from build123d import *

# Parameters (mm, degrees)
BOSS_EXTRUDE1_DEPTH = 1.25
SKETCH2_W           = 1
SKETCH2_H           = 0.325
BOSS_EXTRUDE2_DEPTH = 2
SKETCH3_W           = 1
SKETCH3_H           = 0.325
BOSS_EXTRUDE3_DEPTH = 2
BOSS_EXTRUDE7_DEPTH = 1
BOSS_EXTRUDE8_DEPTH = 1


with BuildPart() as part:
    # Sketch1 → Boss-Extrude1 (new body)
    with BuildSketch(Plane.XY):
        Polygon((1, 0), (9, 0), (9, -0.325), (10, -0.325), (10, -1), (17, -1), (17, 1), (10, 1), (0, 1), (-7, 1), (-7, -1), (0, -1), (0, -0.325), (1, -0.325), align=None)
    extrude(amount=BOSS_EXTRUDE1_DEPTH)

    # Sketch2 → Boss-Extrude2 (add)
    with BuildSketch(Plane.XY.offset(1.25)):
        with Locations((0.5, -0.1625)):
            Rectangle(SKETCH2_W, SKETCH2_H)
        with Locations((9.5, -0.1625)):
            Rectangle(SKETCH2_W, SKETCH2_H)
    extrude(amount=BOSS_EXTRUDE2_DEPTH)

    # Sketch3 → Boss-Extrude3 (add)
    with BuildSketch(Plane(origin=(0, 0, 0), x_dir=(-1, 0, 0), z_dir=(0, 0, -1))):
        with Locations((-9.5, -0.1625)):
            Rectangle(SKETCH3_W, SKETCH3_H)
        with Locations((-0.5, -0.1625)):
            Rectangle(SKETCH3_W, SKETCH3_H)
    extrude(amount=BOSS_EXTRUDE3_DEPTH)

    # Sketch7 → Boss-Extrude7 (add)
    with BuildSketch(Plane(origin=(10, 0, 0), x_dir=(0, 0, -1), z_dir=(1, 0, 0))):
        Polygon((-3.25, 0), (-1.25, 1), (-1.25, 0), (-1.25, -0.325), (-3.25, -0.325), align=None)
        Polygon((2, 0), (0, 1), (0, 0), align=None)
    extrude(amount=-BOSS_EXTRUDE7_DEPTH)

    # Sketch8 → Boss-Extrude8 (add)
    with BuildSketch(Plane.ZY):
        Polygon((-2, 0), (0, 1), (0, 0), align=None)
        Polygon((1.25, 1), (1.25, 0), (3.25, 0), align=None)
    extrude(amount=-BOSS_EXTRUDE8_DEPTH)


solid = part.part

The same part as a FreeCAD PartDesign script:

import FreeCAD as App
import Part
import Sketcher
from FreeCAD import Vector
Q = App.Units.Quantity


def add_polygon(sketch, points):
    """Adds a closed chain of lines whose ends are joined by coincident constraints."""
    first, n = sketch.GeometryCount, len(points)
    for a, b in zip(points, points[1:] + points[:1]):
        sketch.addGeometry(Part.LineSegment(App.Vector(*a, 0), App.Vector(*b, 0)), False)
    for i in range(n):
        sketch.addConstraint(Sketcher.Constraint("Coincident", first + i, 2, first + (i + 1) % n, 1))

doc = App.newDocument("Part")
body = doc.addObject("PartDesign::Body", "Body")

sketch1 = body.newObject("Sketcher::SketchObject", "Sketch")
sketch1.AttachmentSupport = (doc.getObject("XY_Plane"), [""])
sketch1.MapMode = "FlatFace"
add_polygon(sketch1, [(1, 0), (9, 0), (9, -0.33), (10, -0.33), (10, -1), (17, -1), (17, 1), (-7, 1), (-7, -1), (0, -1), (0, -0.33), (1, -0.33)])
sketch1.addConstraint([
    Sketcher.Constraint("Horizontal", 0),
    Sketcher.Constraint("Vertical", 1),
    Sketcher.Constraint("Horizontal", 2),
    Sketcher.Constraint("Vertical", 3),
    Sketcher.Constraint("Horizontal", 4),
    Sketcher.Constraint("Vertical", 5),
    Sketcher.Constraint("Horizontal", 6),
    Sketcher.Constraint("Vertical", 7),
    Sketcher.Constraint("Horizontal", 8),
    Sketcher.Constraint("Vertical", 9),
    Sketcher.Constraint("Horizontal", 10),
    Sketcher.Constraint("Vertical", 11),
    Sketcher.Constraint("PointOnObject", 0, 2, -1),
    Sketcher.Constraint("PointOnObject", 8, 2, -2),
    Sketcher.Constraint("Horizontal", 4, 2, 7, 2),
    Sketcher.Constraint("Horizontal", 2, 2, 9, 2),
    Sketcher.Constraint("Equal", 4, 8),
    Sketcher.Constraint("Equal", 2, 10),
    Sketcher.Constraint("DistanceX", 0, 1, 0, 2, Q("8 mm")),
    Sketcher.Constraint("DistanceX", 2, 1, 2, 2, Q("1 mm")),
    Sketcher.Constraint("DistanceX", 4, 1, 4, 2, Q("7 mm")),
    Sketcher.Constraint("DistanceY", 5, 1, 5, 2, Q("2 mm")),
    Sketcher.Constraint("DistanceY", 3, 2, -1, 1, Q("1 mm")),
    Sketcher.Constraint("DistanceY", 1, 2, 1, 1, Q("0.325 mm")),
])
pad1 = body.newObject("PartDesign::Pad", "Pad")
pad1.Profile = sketch1
pad1.Length = 1.25

sketch2 = body.newObject("Sketcher::SketchObject", "Sketch001")
sketch2.AttachmentSupport = (doc.getObject("XY_Plane"), [""])
sketch2.MapMode = "FlatFace"
sketch2.AttachmentOffset = App.Placement(Vector(0, 0, 1.25), App.Rotation())
add_polygon(sketch2, [(0, 0), (0, -0.33), (1, -0.33), (1, 0)])
add_polygon(sketch2, [(9, 0), (9, -0.33), (10, -0.33), (10, 0)])
sketch2.addConstraint([
    Sketcher.Constraint("Vertical", 0),
    Sketcher.Constraint("Horizontal", 1),
    Sketcher.Constraint("Vertical", 2),
    Sketcher.Constraint("Horizontal", 3),
    Sketcher.Constraint("Vertical", 4),
    Sketcher.Constraint("Horizontal", 5),
    Sketcher.Constraint("Vertical", 6),
    Sketcher.Constraint("Horizontal", 7),
    Sketcher.Constraint("Coincident", 3, 2, -1, 1),
    Sketcher.Constraint("PointOnObject", 6, 2, -1),
    Sketcher.Constraint("Horizontal", 1, 2, 4, 2),
    Sketcher.Constraint("Equal", 3, 5),
    Sketcher.Constraint("DistanceX", 1, 1, 1, 2, Q("1 mm")),
    Sketcher.Constraint("DistanceX", -1, 1, 4, 2, Q("9 mm")),
    Sketcher.Constraint("DistanceY", 0, 2, 0, 1, Q("0.325 mm")),
])
pad2 = body.newObject("PartDesign::Pad", "Pad001")
pad2.Profile = sketch2
pad2.Length = 2

sketch3 = body.newObject("Sketcher::SketchObject", "Sketch002")
sketch3.AttachmentSupport = (doc.getObject("XY_Plane"), [""])
sketch3.MapMode = "FlatFace"
add_polygon(sketch3, [(10, 0), (10, -0.33), (9, -0.33), (9, 0)])
add_polygon(sketch3, [(1, 0), (1, -0.33), (0, -0.33), (0, 0)])
sketch3.addConstraint([
    Sketcher.Constraint("Vertical", 0),
    Sketcher.Constraint("Horizontal", 1),
    Sketcher.Constraint("Vertical", 2),
    Sketcher.Constraint("Horizontal", 3),
    Sketcher.Constraint("Vertical", 4),
    Sketcher.Constraint("Horizontal", 5),
    Sketcher.Constraint("Vertical", 6),
    Sketcher.Constraint("Horizontal", 7),
    Sketcher.Constraint("Coincident", 6, 2, -1, 1),
    Sketcher.Constraint("PointOnObject", 2, 2, -1),
    Sketcher.Constraint("Horizontal", 1, 2, 4, 2),
    Sketcher.Constraint("Equal", 3, 5),
    Sketcher.Constraint("DistanceX", 1, 2, 1, 1, Q("1 mm")),
    Sketcher.Constraint("DistanceX", -1, 1, 0, 2, Q("10 mm")),
    Sketcher.Constraint("DistanceY", 0, 2, 0, 1, Q("0.325 mm")),
])
pad3 = body.newObject("PartDesign::Pad", "Pad002")
pad3.Profile = sketch3
pad3.Length = 2
pad3.Reversed = True

sketch4 = body.newObject("Sketcher::SketchObject", "Sketch003")
sketch4.AttachmentSupport = (doc.getObject("YZ_Plane"), [""])
sketch4.MapMode = "FlatFace"
sketch4.AttachmentOffset = App.Placement(Vector(0, 0, 10), App.Rotation())
add_polygon(sketch4, [(1, 1.25), (0, 3.25), (-0.33, 3.25), (-0.33, 1.25)])
add_polygon(sketch4, [(0, -2), (1, 0), (0, 0)])
sketch4.addConstraint([
    Sketcher.Constraint("Horizontal", 1),
    Sketcher.Constraint("Vertical", 2),
    Sketcher.Constraint("Horizontal", 3),
    Sketcher.Constraint("Horizontal", 5),
    Sketcher.Constraint("Vertical", 6),
    Sketcher.Constraint("Coincident", 5, 2, -1, 1),
    Sketcher.Constraint("PointOnObject", 0, 2, -2),
    Sketcher.Constraint("Vertical", 3, 2, 4, 2),
    Sketcher.Constraint("Equal", 2, 6),
    Sketcher.Constraint("DistanceX", 5, 2, 5, 1, Q("1 mm")),
    Sketcher.Constraint("DistanceY", 2, 2, 2, 1, Q("2 mm")),
    Sketcher.Constraint("DistanceX", 1, 2, 1, 1, Q("0.325 mm")),
    Sketcher.Constraint("DistanceY", -1, 1, 0, 2, Q("3.25 mm")),
])
pad4 = body.newObject("PartDesign::Pad", "Pad003")
pad4.Profile = sketch4
pad4.Length = 1
pad4.Reversed = True

sketch5 = body.newObject("Sketcher::SketchObject", "Sketch004")
sketch5.AttachmentSupport = (doc.getObject("YZ_Plane"), [""])
sketch5.MapMode = "FlatFace"
add_polygon(sketch5, [(1, 0), (0, -2), (0, 0)])
add_polygon(sketch5, [(1, 1.2), (0, 1.2), (0, 3.2)])
sketch5.addConstraint([
    Sketcher.Constraint("Vertical", 1),
    Sketcher.Constraint("Horizontal", 2),
    Sketcher.Constraint("Horizontal", 3),
    Sketcher.Constraint("Vertical", 4),
    Sketcher.Constraint("Coincident", 1, 2, -1, 1),
    Sketcher.Constraint("PointOnObject", 3, 2, -2),
    Sketcher.Constraint("Vertical", 2, 2, 5, 2),
    Sketcher.Constraint("Equal", 1, 4),
    Sketcher.Constraint("DistanceX", 2, 1, 2, 2, Q("1 mm")),
    Sketcher.Constraint("DistanceY", 1, 1, 1, 2, Q("2 mm")),
    Sketcher.Constraint("DistanceY", -1, 1, 3, 2, Q("1.25 mm")),
])
pad5 = body.newObject("PartDesign::Pad", "Pad004")
pad5.Profile = sketch5
pad5.Length = 1

doc.recompute()
